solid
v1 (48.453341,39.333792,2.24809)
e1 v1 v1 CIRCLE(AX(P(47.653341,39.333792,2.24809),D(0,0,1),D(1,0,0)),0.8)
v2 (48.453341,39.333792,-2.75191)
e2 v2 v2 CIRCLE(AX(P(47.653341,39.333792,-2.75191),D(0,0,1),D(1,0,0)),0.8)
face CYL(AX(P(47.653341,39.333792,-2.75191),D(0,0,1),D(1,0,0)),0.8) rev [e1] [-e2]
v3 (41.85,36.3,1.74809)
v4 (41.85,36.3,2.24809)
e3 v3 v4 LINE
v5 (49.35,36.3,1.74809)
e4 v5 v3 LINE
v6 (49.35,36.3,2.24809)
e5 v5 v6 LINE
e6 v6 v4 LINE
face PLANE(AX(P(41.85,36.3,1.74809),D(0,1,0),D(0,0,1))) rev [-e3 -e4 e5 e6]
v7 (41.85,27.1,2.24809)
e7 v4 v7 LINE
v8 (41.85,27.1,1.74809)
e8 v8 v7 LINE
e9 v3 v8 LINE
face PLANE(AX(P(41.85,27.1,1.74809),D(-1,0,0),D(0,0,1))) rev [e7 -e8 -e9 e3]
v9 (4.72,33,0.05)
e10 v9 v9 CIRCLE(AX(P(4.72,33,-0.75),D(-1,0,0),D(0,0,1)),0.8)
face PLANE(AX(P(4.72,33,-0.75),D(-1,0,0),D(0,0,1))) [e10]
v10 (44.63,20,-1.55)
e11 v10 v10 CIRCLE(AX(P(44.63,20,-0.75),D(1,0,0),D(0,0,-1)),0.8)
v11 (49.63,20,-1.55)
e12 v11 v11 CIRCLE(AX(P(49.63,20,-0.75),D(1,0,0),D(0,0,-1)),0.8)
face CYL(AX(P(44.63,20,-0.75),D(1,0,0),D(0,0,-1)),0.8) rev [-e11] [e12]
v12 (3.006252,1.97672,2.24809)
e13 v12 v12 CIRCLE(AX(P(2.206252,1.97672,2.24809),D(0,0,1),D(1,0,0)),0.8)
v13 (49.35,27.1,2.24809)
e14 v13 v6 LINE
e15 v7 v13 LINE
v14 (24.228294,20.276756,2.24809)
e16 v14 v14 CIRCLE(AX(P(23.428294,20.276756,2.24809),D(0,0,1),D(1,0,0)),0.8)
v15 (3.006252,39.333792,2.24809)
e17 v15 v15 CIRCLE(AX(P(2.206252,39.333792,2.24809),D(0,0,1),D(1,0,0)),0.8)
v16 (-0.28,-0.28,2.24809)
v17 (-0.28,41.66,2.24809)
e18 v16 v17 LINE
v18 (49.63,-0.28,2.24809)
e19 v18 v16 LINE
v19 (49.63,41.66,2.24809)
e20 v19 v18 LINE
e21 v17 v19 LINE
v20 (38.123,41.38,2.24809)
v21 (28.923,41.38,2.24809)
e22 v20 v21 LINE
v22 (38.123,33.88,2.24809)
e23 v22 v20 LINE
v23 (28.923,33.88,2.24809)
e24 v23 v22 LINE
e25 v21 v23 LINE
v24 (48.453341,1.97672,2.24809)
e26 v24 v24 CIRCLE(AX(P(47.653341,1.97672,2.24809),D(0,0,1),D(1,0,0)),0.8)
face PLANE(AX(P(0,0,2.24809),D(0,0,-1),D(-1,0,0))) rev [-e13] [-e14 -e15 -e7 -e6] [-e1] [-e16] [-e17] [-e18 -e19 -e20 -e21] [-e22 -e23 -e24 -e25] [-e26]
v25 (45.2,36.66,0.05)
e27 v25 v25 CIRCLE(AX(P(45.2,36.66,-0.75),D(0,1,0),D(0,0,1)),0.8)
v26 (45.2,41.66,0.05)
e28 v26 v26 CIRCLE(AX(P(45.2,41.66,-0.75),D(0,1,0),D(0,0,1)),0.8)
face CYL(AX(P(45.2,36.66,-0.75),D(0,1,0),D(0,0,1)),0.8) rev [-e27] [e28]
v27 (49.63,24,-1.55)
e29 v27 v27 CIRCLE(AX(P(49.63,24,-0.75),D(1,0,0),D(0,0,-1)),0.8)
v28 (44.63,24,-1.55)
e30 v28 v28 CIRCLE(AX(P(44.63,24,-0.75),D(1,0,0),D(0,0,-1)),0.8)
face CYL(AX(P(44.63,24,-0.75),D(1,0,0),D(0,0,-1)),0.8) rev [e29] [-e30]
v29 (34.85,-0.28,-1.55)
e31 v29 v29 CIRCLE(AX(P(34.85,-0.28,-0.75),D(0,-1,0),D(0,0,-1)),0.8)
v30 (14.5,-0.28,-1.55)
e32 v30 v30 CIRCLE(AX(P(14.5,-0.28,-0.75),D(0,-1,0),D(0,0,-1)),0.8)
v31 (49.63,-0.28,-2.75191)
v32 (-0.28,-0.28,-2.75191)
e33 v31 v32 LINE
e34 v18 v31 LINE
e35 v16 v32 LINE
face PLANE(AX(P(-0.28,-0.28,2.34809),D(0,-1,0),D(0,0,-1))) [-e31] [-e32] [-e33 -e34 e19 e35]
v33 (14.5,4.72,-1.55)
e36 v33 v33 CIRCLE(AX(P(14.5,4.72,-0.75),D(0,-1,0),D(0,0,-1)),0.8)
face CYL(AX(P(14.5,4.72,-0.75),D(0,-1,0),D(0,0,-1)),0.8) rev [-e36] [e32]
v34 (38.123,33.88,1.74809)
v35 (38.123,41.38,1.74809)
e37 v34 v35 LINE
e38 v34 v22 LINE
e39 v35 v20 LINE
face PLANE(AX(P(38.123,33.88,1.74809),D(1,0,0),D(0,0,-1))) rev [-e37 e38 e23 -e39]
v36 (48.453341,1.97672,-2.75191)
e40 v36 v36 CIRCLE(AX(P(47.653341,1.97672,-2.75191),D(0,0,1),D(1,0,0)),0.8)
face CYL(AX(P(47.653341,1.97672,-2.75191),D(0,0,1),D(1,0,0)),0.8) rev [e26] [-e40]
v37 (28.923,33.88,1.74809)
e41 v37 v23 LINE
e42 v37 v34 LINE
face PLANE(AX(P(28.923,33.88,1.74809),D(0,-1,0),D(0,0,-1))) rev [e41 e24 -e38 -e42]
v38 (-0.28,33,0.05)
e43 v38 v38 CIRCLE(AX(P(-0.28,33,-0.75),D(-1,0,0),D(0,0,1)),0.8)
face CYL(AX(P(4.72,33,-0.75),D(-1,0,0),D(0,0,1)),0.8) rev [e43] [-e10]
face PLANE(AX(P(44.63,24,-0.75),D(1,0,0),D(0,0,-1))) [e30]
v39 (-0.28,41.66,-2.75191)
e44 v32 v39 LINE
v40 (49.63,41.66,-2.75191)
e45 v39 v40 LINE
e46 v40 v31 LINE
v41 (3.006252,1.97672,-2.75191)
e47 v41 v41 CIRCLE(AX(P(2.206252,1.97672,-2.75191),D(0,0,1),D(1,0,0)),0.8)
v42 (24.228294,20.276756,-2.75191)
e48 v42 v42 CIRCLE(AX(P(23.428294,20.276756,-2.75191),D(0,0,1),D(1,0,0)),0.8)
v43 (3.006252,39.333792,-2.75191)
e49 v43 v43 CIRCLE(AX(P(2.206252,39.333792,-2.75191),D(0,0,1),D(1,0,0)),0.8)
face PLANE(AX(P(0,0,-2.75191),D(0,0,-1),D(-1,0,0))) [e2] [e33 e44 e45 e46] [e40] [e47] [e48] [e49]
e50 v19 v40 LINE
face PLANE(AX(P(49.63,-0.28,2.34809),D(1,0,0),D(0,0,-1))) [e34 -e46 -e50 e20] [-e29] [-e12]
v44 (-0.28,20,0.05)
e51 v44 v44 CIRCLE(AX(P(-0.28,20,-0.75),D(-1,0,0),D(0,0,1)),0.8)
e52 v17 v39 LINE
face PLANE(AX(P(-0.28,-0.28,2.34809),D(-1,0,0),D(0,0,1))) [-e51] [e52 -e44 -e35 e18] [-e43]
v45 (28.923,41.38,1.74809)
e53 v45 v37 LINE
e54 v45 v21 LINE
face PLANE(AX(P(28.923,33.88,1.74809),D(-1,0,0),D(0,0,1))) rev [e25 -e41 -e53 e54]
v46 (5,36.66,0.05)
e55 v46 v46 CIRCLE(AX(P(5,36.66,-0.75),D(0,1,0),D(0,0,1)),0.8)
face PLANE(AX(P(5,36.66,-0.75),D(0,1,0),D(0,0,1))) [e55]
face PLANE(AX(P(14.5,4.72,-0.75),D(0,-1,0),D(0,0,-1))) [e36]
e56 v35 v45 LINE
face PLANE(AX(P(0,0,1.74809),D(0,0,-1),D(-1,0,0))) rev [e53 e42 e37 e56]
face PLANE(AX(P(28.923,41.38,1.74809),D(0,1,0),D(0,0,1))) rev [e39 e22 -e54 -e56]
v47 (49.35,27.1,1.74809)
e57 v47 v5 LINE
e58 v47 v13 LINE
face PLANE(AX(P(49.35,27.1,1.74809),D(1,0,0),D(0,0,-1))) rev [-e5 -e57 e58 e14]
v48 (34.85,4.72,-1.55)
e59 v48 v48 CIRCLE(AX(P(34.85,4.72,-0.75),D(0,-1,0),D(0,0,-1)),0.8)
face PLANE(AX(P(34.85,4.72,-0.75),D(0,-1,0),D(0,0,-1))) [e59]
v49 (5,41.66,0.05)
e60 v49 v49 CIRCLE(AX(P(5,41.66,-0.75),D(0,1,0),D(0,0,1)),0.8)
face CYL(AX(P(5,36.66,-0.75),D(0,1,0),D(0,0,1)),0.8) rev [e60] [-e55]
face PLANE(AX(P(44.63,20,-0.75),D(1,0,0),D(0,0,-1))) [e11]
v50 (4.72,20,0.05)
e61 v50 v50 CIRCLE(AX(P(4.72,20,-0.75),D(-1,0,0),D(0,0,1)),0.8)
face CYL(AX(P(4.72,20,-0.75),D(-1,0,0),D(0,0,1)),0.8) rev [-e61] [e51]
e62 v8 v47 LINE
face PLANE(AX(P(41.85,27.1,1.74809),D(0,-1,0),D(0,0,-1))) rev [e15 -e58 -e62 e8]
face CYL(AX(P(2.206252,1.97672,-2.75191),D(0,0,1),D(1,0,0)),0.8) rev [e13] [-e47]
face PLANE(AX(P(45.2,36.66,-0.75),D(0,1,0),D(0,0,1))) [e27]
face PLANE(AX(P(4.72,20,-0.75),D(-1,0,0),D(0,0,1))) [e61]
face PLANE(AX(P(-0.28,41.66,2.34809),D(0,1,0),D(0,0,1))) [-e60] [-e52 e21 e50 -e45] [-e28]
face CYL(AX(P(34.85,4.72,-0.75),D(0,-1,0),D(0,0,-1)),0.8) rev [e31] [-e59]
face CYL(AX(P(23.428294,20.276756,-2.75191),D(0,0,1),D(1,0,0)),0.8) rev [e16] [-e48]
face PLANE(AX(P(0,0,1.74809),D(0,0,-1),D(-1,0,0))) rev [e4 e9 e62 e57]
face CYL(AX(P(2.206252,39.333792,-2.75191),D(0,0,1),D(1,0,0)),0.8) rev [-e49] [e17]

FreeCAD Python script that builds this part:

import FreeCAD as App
import Part
import Sketcher
from FreeCAD import Vector


def add_polygon(sketch, points):
    """Adds a closed chain of lines whose ends are joined by coincident constraints."""
    first, n = sketch.GeometryCount, len(points)
    for a, b in zip(points, points[1:] + points[:1]):
        sketch.addGeometry(Part.LineSegment(App.Vector(*a, 0), App.Vector(*b, 0)), False)
    for i in range(n):
        sketch.addConstraint(Sketcher.Constraint("Coincident", first + i, 2, first + (i + 1) % n, 1))

doc = App.newDocument("Part")
params = doc.addObject("Spreadsheet::Sheet", "Params")
for row, (alias, value) in enumerate([
    ("sketch1_width", "57.95 mm"),
    ("sketch1_height", "49.98 mm"),
    ("pad1_length", "5 mm"),
    ("sketch2_diameter", "1.6 mm"),
    ("sketch3_width", "7.5 mm"),
    ("sketch3_height", "9.2 mm"),
    ("pocket2_length", "0.5 mm"),
    ("sketch4_width", "9.2 mm"),
    ("sketch4_height", "7.5 mm"),
    ("pocket3_length", "0.5 mm"),
    ("sketch5_width", "62 mm"),
    ("sketch5_height", "54 mm"),
    ("sketch5_width2", "49.91 mm"),
    ("sketch5_height2", "41.94 mm"),
    ("pocket4_length", "5.1 mm"),
    ("sketch6_diameter", "1.6 mm"),
    ("pocket5_length", "5 mm"),
    ("sketch7_diameter", "1.6 mm"),
    ("pocket6_length", "5 mm"),
    ("sketch8_diameter", "1.6 mm"),
    ("pocket7_length", "5 mm"),
    ("sketch9_diameter", "1.6 mm"),
    ("pocket8_length", "5 mm"),
], start=1):
    params.set(f"A{row}", alias)
    params.set(f"B{row}", "=" + value)
    params.setAlias(f"B{row}", alias)

body = doc.addObject("PartDesign::Body", "Body")

sketch1 = body.newObject("Sketcher::SketchObject", "Sketch")
sketch1.AttachmentSupport = (doc.getObject("XY_Plane"), [""])
sketch1.MapMode = "FlatFace"
sketch1.AttachmentOffset = App.Placement(Vector(0, 0, -2.75191), App.Rotation())
add_polygon(sketch1, [(-4, 46), (-4, -4), (54, -4), (54, 46)])
sketch1.addConstraint([
    Sketcher.Constraint("Vertical", 0),
    Sketcher.Constraint("Horizontal", 1),
    Sketcher.Constraint("Vertical", 2),
    Sketcher.Constraint("Horizontal", 3),
    Sketcher.Constraint("DistanceX", 1, 1, 1, 2, 57.95),
    Sketcher.Constraint("DistanceY", 0, 2, 0, 1, 49.98),
    Sketcher.Constraint("DistanceX", 0, 2, -1, 1, 4.3),
    Sketcher.Constraint("DistanceY", 0, 2, -1, 1, 4.3),
])
sketch1.setExpression("Constraints[8]", "Params.sketch1_width")
sketch1.setExpression("Constraints[9]", "Params.sketch1_height")
pad1 = body.newObject("PartDesign::Pad", "Pad")
pad1.Profile = sketch1
pad1.setExpression("Length", "Params.pad1_length")

sketch2 = body.newObject("Sketcher::SketchObject", "Sketch001")
sketch2.AttachmentSupport = (doc.getObject("XY_Plane"), [""])
sketch2.MapMode = "FlatFace"
sketch2.AttachmentOffset = App.Placement(Vector(0, 0, 2.24809), App.Rotation())
sketch2.addGeometry([
    Part.Circle(Vector(23.4, 20.3, 0), Vector(0, 0, 1), 0.8),
    Part.Circle(Vector(2.2, 39.3, 0), Vector(0, 0, 1), 0.8),
    Part.Circle(Vector(47.7, 39.3, 0), Vector(0, 0, 1), 0.8),
    Part.Circle(Vector(47.7, 2, 0), Vector(0, 0, 1), 0.8),
    Part.Circle(Vector(2.2, 2, 0), Vector(0, 0, 1), 0.8),
], False)
sketch2.addConstraint([
    Sketcher.Constraint("Equal", 0, 1),
    Sketcher.Constraint("Equal", 1, 2),
    Sketcher.Constraint("Equal", 2, 3),
    Sketcher.Constraint("Equal", 3, 4),
    Sketcher.Constraint("Horizontal", 1, 3, 2, 3),
    Sketcher.Constraint("Horizontal", 3, 3, 4, 3),
    Sketcher.Constraint("Vertical", 2, 3, 3, 3),
    Sketcher.Constraint("Vertical", 1, 3, 4, 3),
    Sketcher.Constraint("Diameter", 0, 1.6),
    Sketcher.Constraint("DistanceX", -1, 1, 1, 3, 2.206252),
    Sketcher.Constraint("DistanceY", -1, 1, 1, 3, 39.333792),
    Sketcher.Constraint("DistanceX", -1, 1, 2, 3, 47.653341),
    Sketcher.Constraint("DistanceY", -1, 1, 3, 3, 1.97672),
    Sketcher.Constraint("DistanceX", -1, 1, 0, 3, 23.428294),
    Sketcher.Constraint("DistanceY", -1, 1, 0, 3, 20.276756),
])
sketch2.setExpression("Constraints[8]", "Params.sketch2_diameter")
pocket1 = body.newObject("PartDesign::Pocket", "Pocket")
pocket1.Profile = sketch2
pocket1.Type = "ThroughAll"

sketch3 = body.newObject("Sketcher::SketchObject", "Sketch002")
sketch3.AttachmentSupport = (doc.getObject("XY_Plane"), [""])
sketch3.MapMode = "FlatFace"
sketch3.AttachmentOffset = App.Placement(Vector(0, 0, 2.24809), App.Rotation())
add_polygon(sketch3, [(42, 36), (42, 27), (49, 27), (49, 36)])
sketch3.addConstraint([
    Sketcher.Constraint("Vertical", 0),
    Sketcher.Constraint("Horizontal", 1),
    Sketcher.Constraint("Vertical", 2),
    Sketcher.Constraint("Horizontal", 3),
    Sketcher.Constraint("DistanceX", 1, 1, 1, 2, 7.5),
    Sketcher.Constraint("DistanceY", 0, 2, 0, 1, 9.2),
    Sketcher.Constraint("DistanceY", -1, 1, 0, 2, 27.1),
    Sketcher.Constraint("DistanceX", -1, 1, 0, 2, 41.85),
])
sketch3.setExpression("Constraints[8]", "Params.sketch3_width")
sketch3.setExpression("Constraints[9]", "Params.sketch3_height")
pocket2 = body.newObject("PartDesign::Pocket", "Pocket001")
pocket2.Profile = sketch3
pocket2.setExpression("Length", "Params.pocket2_length")

sketch4 = body.newObject("Sketcher::SketchObject", "Sketch003")
sketch4.AttachmentSupport = (doc.getObject("XY_Plane"), [""])
sketch4.MapMode = "FlatFace"
sketch4.AttachmentOffset = App.Placement(Vector(0, 0, 2.24809), App.Rotation())
add_polygon(sketch4, [(29, 41), (29, 34), (38, 34), (38, 41)])
sketch4.addConstraint([
    Sketcher.Constraint("Vertical", 0),
    Sketcher.Constraint("Horizontal", 1),
    Sketcher.Constraint("Vertical", 2),
    Sketcher.Constraint("Horizontal", 3),
    Sketcher.Constraint("DistanceX", 1, 1, 1, 2, 9.2),
    Sketcher.Constraint("DistanceY", 0, 2, 0, 1, 7.5),
    Sketcher.Constraint("DistanceY", -1, 1, 0, 2, 33.88),
    Sketcher.Constraint("DistanceX", -1, 1, 0, 2, 28.923),
])
sketch4.setExpression("Constraints[8]", "Params.sketch4_width")
sketch4.setExpression("Constraints[9]", "Params.sketch4_height")
pocket3 = body.newObject("PartDesign::Pocket", "Pocket002")
pocket3.Profile = sketch4
pocket3.setExpression("Length", "Params.pocket3_length")

sketch5 = body.newObject("Sketcher::SketchObject", "Sketch004")
sketch5.AttachmentSupport = (doc.getObject("XY_Plane"), [""])
sketch5.MapMode = "FlatFace"
sketch5.AttachmentOffset = App.Placement(Vector(0, 0, -2.75191), App.Rotation())
add_polygon(sketch5, [(56, 48), (56, -6), (-6, -6), (-6, 48)])
add_polygon(sketch5, [(0, 0), (50, 0), (50, 42), (0, 42)])
sketch5.addConstraint([
    Sketcher.Constraint("Vertical", 0),
    Sketcher.Constraint("Horizontal", 1),
    Sketcher.Constraint("Vertical", 2),
    Sketcher.Constraint("Horizontal", 3),
    Sketcher.Constraint("Horizontal", 4),
    Sketcher.Constraint("Vertical", 5),
    Sketcher.Constraint("Horizontal", 6),
    Sketcher.Constraint("Vertical", 7),
    Sketcher.Constraint("DistanceX", 1, 2, 1, 1, 62.0),
    Sketcher.Constraint("DistanceY", 0, 2, 0, 1, 54.0),
    Sketcher.Constraint("DistanceX", -1, 1, 0, 2, 56.0),
    Sketcher.Constraint("DistanceY", 0, 2, -1, 1, 6.0),
    Sketcher.Constraint("DistanceX", 4, 1, 4, 2, 49.91),
    Sketcher.Constraint("DistanceY", 5, 1, 5, 2, 41.94),
    Sketcher.Constraint("DistanceX", -1, 1, 4, 2, 49.63),
    Sketcher.Constraint("DistanceY", 4, 2, -1, 1, 0.28),
])
sketch5.setExpression("Constraints[16]", "Params.sketch5_width")
sketch5.setExpression("Constraints[17]", "Params.sketch5_height")
sketch5.setExpression("Constraints[20]", "Params.sketch5_width2")
sketch5.setExpression("Constraints[21]", "Params.sketch5_height2")
pocket4 = body.newObject("PartDesign::Pocket", "Pocket003")
pocket4.Profile = sketch5
pocket4.setExpression("Length", "Params.pocket4_length")
pocket4.Reversed = True

sketch6 = body.newObject("Sketcher::SketchObject", "Sketch005")
sketch6.AttachmentSupport = (doc.getObject("YZ_Plane"), [""])
sketch6.MapMode = "FlatFace"
sketch6.AttachmentOffset = App.Placement(Vector(0, 0, -0.28), App.Rotation())
sketch6.addGeometry([
    Part.Circle(Vector(20, -0.8, 0), Vector(0, 0, 1), 0.8),
    Part.Circle(Vector(33, -0.8, 0), Vector(0, 0, 1), 0.8),
], False)
sketch6.addConstraint([
    Sketcher.Constraint("Equal", 0, 1),
    Sketcher.Constraint("Horizontal", 0, 3, 1, 3),
    Sketcher.Constraint("Diameter", 0, 1.6),
    Sketcher.Constraint("DistanceX", -1, 1, 0, 3, 20.0),
    Sketcher.Constraint("DistanceX", -1, 1, 1, 3, 33.0),
    Sketcher.Constraint("DistanceY", 0, 3, -1, 1, 0.75),
])
sketch6.setExpression("Constraints[2]", "Params.sketch6_diameter")
pocket5 = body.newObject("PartDesign::Pocket", "Pocket004")
pocket5.Profile = sketch6
pocket5.setExpression("Length", "Params.pocket5_length")
pocket5.Reversed = True

sketch7 = body.newObject("Sketcher::SketchObject", "Sketch006")
sketch7.AttachmentSupport = (doc.getObject("YZ_Plane"), [""])
sketch7.MapMode = "FlatFace"
sketch7.AttachmentOffset = App.Placement(Vector(0, 0, 44.63), App.Rotation())
sketch7.addGeometry([
    Part.Circle(Vector(20, -0.8, 0), Vector(0, 0, 1), 0.8),
    Part.Circle(Vector(24, -0.8, 0), Vector(0, 0, 1), 0.8),
], False)
sketch7.addConstraint([
    Sketcher.Constraint("Equal", 0, 1),
    Sketcher.Constraint("Horizontal", 0, 3, 1, 3),
    Sketcher.Constraint("Diameter", 0, 1.6),
    Sketcher.Constraint("DistanceX", -1, 1, 0, 3, 20.0),
    Sketcher.Constraint("DistanceX", -1, 1, 1, 3, 24.0),
    Sketcher.Constraint("DistanceY", 0, 3, -1, 1, 0.75),
])
sketch7.setExpression("Constraints[2]", "Params.sketch7_diameter")
pocket6 = body.newObject("PartDesign::Pocket", "Pocket005")
pocket6.Profile = sketch7
pocket6.setExpression("Length", "Params.pocket6_length")
pocket6.Reversed = True

sketch8 = body.newObject("Sketcher::SketchObject", "Sketch007")
sketch8.AttachmentSupport = (doc.getObject("XZ_Plane"), [""])
sketch8.MapMode = "FlatFace"
sketch8.AttachmentOffset = App.Placement(Vector(0, 0, 0.28), App.Rotation())
sketch8.addGeometry([
    Part.Circle(Vector(14.5, -0.8, 0), Vector(0, 0, 1), 0.8),
    Part.Circle(Vector(34.9, -0.8, 0), Vector(0, 0, 1), 0.8),
], False)
sketch8.addConstraint([
    Sketcher.Constraint("Equal", 0, 1),
    Sketcher.Constraint("Horizontal", 0, 3, 1, 3),
    Sketcher.Constraint("Diameter", 0, 1.6),
    Sketcher.Constraint("DistanceX", -1, 1, 0, 3, 14.5),
    Sketcher.Constraint("DistanceY", 0, 3, -1, 1, 0.75),
    Sketcher.Constraint("DistanceX", -1, 1, 1, 3, 34.85),
])
sketch8.setExpression("Constraints[2]", "Params.sketch8_diameter")
pocket7 = body.newObject("PartDesign::Pocket", "Pocket006")
pocket7.Profile = sketch8
pocket7.setExpression("Length", "Params.pocket7_length")

sketch9 = body.newObject("Sketcher::SketchObject", "Sketch008")
sketch9.AttachmentSupport = (doc.getObject("XZ_Plane"), [""])
sketch9.MapMode = "FlatFace"
sketch9.AttachmentOffset = App.Placement(Vector(0, 0, -41.66), App.Rotation())
sketch9.addGeometry([
    Part.Circle(Vector(5, -0.8, 0), Vector(0, 0, 1), 0.8),
    Part.Circle(Vector(45.2, -0.8, 0), Vector(0, 0, 1), 0.8),
], False)
sketch9.addConstraint([
    Sketcher.Constraint("Equal", 0, 1),
    Sketcher.Constraint("Horizontal", 0, 3, 1, 3),
    Sketcher.Constraint("Diameter", 0, 1.6),
    Sketcher.Constraint("DistanceX", -1, 1, 0, 3, 5.0),
    Sketcher.Constraint("DistanceX", -1, 1, 1, 3, 45.2),
    Sketcher.Constraint("DistanceY", 0, 3, -1, 1, 0.75),
])
sketch9.setExpression("Constraints[2]", "Params.sketch9_diameter")
pocket8 = body.newObject("PartDesign::Pocket", "Pocket007")
pocket8.Profile = sketch9
pocket8.setExpression("Length", "Params.pocket8_length")
pocket8.Reversed = True

doc.recompute()
